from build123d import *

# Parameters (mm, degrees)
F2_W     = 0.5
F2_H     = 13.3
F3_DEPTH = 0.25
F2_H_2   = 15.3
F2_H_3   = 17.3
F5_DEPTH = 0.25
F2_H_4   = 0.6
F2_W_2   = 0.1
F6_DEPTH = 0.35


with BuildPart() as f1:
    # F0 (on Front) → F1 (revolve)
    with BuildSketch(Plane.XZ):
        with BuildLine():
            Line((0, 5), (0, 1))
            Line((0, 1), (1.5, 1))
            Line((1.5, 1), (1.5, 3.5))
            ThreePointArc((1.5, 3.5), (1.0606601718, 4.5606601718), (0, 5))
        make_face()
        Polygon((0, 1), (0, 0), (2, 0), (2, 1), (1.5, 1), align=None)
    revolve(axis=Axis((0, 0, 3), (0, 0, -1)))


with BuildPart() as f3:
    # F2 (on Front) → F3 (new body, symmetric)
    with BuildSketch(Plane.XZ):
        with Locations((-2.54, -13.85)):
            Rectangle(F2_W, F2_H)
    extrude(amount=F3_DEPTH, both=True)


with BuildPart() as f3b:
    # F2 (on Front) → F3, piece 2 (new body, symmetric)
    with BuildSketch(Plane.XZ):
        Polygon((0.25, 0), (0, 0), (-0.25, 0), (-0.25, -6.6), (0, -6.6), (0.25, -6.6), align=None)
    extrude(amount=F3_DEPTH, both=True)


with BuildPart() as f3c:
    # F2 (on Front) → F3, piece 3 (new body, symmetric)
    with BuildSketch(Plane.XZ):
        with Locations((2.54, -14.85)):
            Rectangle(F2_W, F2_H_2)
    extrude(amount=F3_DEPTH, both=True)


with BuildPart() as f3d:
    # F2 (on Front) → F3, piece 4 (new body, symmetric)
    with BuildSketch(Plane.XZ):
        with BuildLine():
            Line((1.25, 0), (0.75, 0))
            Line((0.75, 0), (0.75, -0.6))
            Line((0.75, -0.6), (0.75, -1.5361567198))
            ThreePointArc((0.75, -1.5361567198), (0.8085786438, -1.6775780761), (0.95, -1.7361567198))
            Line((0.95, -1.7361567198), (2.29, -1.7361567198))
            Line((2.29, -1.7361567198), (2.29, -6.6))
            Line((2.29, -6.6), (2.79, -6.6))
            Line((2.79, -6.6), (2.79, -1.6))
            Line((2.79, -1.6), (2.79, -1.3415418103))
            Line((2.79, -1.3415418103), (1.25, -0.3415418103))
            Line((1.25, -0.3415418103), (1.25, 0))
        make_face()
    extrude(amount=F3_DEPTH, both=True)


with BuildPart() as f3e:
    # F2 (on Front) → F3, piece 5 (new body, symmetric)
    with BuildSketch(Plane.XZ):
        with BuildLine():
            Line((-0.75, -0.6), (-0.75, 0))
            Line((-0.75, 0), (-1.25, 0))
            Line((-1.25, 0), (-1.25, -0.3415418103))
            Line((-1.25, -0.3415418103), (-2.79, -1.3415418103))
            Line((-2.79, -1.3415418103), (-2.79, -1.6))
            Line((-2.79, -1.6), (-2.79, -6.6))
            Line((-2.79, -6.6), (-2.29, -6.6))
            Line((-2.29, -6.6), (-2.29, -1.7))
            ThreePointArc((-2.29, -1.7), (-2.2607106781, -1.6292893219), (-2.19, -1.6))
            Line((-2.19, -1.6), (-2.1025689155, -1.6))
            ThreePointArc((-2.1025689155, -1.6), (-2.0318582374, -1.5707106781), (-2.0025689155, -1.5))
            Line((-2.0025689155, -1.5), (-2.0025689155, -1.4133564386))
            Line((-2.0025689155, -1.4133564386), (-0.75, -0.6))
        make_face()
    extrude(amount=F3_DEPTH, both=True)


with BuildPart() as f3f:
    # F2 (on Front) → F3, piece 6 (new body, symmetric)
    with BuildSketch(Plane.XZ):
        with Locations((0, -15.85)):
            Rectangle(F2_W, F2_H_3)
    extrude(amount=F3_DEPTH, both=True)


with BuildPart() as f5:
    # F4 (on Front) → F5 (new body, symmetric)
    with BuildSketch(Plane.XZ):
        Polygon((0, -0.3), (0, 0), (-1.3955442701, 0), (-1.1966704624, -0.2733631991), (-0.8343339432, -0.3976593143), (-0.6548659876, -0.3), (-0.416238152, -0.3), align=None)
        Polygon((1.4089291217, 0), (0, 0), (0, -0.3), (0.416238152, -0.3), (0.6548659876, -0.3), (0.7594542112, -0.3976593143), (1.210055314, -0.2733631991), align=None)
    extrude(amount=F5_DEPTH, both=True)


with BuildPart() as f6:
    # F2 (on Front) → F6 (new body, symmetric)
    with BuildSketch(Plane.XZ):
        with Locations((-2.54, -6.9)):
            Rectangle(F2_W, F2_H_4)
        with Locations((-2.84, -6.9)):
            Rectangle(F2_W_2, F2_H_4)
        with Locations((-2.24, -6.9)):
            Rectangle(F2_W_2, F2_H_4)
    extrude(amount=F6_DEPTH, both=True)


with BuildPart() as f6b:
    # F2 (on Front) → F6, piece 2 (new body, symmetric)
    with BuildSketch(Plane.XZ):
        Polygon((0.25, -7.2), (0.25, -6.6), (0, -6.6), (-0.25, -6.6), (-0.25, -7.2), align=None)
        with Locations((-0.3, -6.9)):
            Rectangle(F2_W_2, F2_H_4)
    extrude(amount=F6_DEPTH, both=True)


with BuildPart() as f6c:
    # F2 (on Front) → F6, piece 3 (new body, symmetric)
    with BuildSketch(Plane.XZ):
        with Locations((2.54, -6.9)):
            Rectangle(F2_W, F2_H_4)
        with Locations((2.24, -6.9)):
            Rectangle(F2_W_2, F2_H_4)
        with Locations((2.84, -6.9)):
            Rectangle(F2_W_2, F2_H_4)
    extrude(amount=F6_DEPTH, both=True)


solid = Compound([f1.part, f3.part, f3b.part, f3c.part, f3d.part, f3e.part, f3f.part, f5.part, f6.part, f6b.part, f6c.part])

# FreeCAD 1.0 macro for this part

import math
import FreeCAD as App
import Part
import Sketcher

V = App.Vector


def add_polygon(sketch, points):
    """Adds a closed chain of lines whose ends are joined by coincident constraints."""
    first, n = sketch.GeometryCount, len(points)
    for a, b in zip(points, points[1:] + points[:1]):
        sketch.addGeometry(Part.LineSegment(App.Vector(*a, 0), App.Vector(*b, 0)), False)
    for i in range(n):
        sketch.addConstraint(Sketcher.Constraint("Coincident", first + i, 2, first + (i + 1) % n, 1))

doc = App.newDocument("Part")
body = doc.addObject("PartDesign::Body", "Body")

sketch1 = body.newObject("Sketcher::SketchObject", "Sketch")
sketch1.AttachmentSupport = (doc.getObject("XZ_Plane"), [""])
sketch1.MapMode = "FlatFace"
sketch1.addGeometry([
    Part.LineSegment(V(0, 5, 0), V(0, 0, 0)),
    Part.LineSegment(V(0, 0, 0), V(2, 0, 0)),
    Part.LineSegment(V(2, 0, 0), V(2, 1, 0)),
    Part.LineSegment(V(2, 1, 0), V(1.5, 1, 0)),
    Part.LineSegment(V(1.5, 1, 0), V(1.5, 3.5, 0)),
    Part.ArcOfCircle(Part.Circle(V(0, 3.5, 0), V(0, 0, 1), 1.5), math.radians(0), math.radians(90)),
], False)
sketch1.addConstraint([
    Sketcher.Constraint("Coincident", 0, 2, 1, 1),
    Sketcher.Constraint("Coincident", 1, 2, 2, 1),
    Sketcher.Constraint("Coincident", 2, 2, 3, 1),
    Sketcher.Constraint("Coincident", 3, 2, 4, 1),
    Sketcher.Constraint("Tangent", 4, 2, 5, 1),
    Sketcher.Constraint("Coincident", 5, 2, 0, 1),
    Sketcher.Constraint("Vertical", 0),
    Sketcher.Constraint("Horizontal", 1),
    Sketcher.Constraint("Vertical", 2),
    Sketcher.Constraint("Horizontal", 3),
    Sketcher.Constraint("Vertical", 4),
    Sketcher.Constraint("Coincident", 0, 2, -1, 1),
    Sketcher.Constraint("PointOnObject", 5, 3, -2),
    Sketcher.Constraint("Radius", 5, 1.5),
    Sketcher.Constraint("DistanceX", 1, 1, 1, 2, 2.0),
    Sketcher.Constraint("DistanceY", 0, 2, 0, 1, 5.0),
    Sketcher.Constraint("DistanceY", 2, 1, 2, 2, 1.0),
])
revolution = body.newObject("PartDesign::Revolution", "Revolution")
revolution.Profile = sketch1
revolution.ReferenceAxis = (sketch1, ["V_Axis"])
revolution.Angle = 360
body2 = doc.addObject("PartDesign::Body", "Body001")

sketch2 = body2.newObject("Sketcher::SketchObject", "Sketch001")
sketch2.AttachmentSupport = (doc.getObject("XZ_Plane001"), [""])
sketch2.MapMode = "FlatFace"
add_polygon(sketch2, [(-2.8, -7.2), (-2.8, -20.5), (-2.3, -20.5), (-2.3, -7.2)])
sketch2.addConstraint([
    Sketcher.Constraint("Vertical", 0),
    Sketcher.Constraint("Horizontal", 1),
    Sketcher.Constraint("Vertical", 2),
    Sketcher.Constraint("Horizontal", 3),
    Sketcher.Constraint("DistanceX", 1, 1, 1, 2, 0.5),
    Sketcher.Constraint("DistanceY", 0, 2, 0, 1, 13.3),
    Sketcher.Constraint("DistanceY", 0, 2, -1, 1, 20.5),
    Sketcher.Constraint("DistanceX", 0, 2, -1, 1, 2.79),
])
pad1 = body2.newObject("PartDesign::Pad", "Pad")
pad1.Profile = sketch2
pad1.Length = 0.5
pad1.Midplane = True
body3 = doc.addObject("PartDesign::Body", "Body002")

sketch3 = body3.newObject("Sketcher::SketchObject", "Sketch002")
sketch3.AttachmentSupport = (doc.getObject("XZ_Plane002"), [""])
sketch3.MapMode = "FlatFace"
add_polygon(sketch3, [(0.2, 0), (-0.2, 0), (-0.2, -6.6), (0.2, -6.6)])
sketch3.addConstraint([
    Sketcher.Constraint("Horizontal", 0),
    Sketcher.Constraint("Vertical", 1),
    Sketcher.Constraint("Horizontal", 2),
    Sketcher.Constraint("Vertical", 3),
    Sketcher.Constraint("Symmetric", 0, 2, 3, 2, -1, 1),
    Sketcher.Constraint("DistanceX", 0, 2, 0, 1, 0.5),
    Sketcher.Constraint("DistanceY", 1, 2, 1, 1, 6.6),
])
pad2 = body3.newObject("PartDesign::Pad", "Pad001")
pad2.Profile = sketch3
pad2.Length = 0.5
pad2.Midplane = True
body4 = doc.addObject("PartDesign::Body", "Body003")

sketch4 = body4.newObject("Sketcher::SketchObject", "Sketch003")
sketch4.AttachmentSupport = (doc.getObject("XZ_Plane003"), [""])
sketch4.MapMode = "FlatFace"
add_polygon(sketch4, [(2.3, -7.2), (2.3, -22.5), (2.8, -22.5), (2.8, -7.2)])
sketch4.addConstraint([
    Sketcher.Constraint("Vertical", 0),
    Sketcher.Constraint("Horizontal", 1),
    Sketcher.Constraint("Vertical", 2),
    Sketcher.Constraint("Horizontal", 3),
    Sketcher.Constraint("DistanceX", 1, 1, 1, 2, 0.5),
    Sketcher.Constraint("DistanceY", 0, 2, 0, 1, 15.3),
    Sketcher.Constraint("DistanceY", 0, 2, -1, 1, 22.5),
    Sketcher.Constraint("DistanceX", -1, 1, 0, 2, 2.29),
])
pad3 = body4.newObject("PartDesign::Pad", "Pad002")
pad3.Profile = sketch4
pad3.Length = 0.5
pad3.Midplane = True
body5 = doc.addObject("PartDesign::Body", "Body004")

sketch5 = body5.newObject("Sketcher::SketchObject", "Sketch004")
sketch5.AttachmentSupport = (doc.getObject("XZ_Plane004"), [""])
sketch5.MapMode = "FlatFace"
sketch5.addGeometry([
    Part.LineSegment(V(1.25, 0, 0), V(0.75, 0, 0)),
    Part.LineSegment(V(0.75, 0, 0), V(0.75, -1.54, 0)),
    Part.ArcOfCircle(Part.Circle(V(0.95, -1.54, 0), V(0, 0, 1), 0.2), math.radians(180), math.radians(270)),
    Part.LineSegment(V(0.95, -1.74, 0), V(2.29, -1.74, 0)),
    Part.LineSegment(V(2.29, -1.74, 0), V(2.29, -6.6, 0)),
    Part.LineSegment(V(2.29, -6.6, 0), V(2.79, -6.6, 0)),
    Part.LineSegment(V(2.79, -6.6, 0), V(2.79, -1.34, 0)),
    Part.LineSegment(V(2.79, -1.34, 0), V(1.25, -0.34, 0)),
    Part.LineSegment(V(1.25, -0.34, 0), V(1.25, 0, 0)),
], False)
sketch5.addConstraint([
    Sketcher.Constraint("Coincident", 0, 2, 1, 1),
    Sketcher.Constraint("Tangent", 1, 2, 2, 1),
    Sketcher.Constraint("Tangent", 2, 2, 3, 1),
    Sketcher.Constraint("Coincident", 3, 2, 4, 1),
    Sketcher.Constraint("Coincident", 4, 2, 5, 1),
    Sketcher.Constraint("Coincident", 5, 2, 6, 1),
    Sketcher.Constraint("Coincident", 6, 2, 7, 1),
    Sketcher.Constraint("Coincident", 7, 2, 8, 1),
    Sketcher.Constraint("Coincident", 8, 2, 0, 1),
    Sketcher.Constraint("Horizontal", 0),
    Sketcher.Constraint("Vertical", 1),
    Sketcher.Constraint("Horizontal", 3),
    Sketcher.Constraint("Vertical", 4),
    Sketcher.Constraint("Horizontal", 5),
    Sketcher.Constraint("Vertical", 6),
    Sketcher.Constraint("Vertical", 8),
    Sketcher.Constraint("PointOnObject", 0, 2, -1),
    Sketcher.Constraint("Equal", 0, 5),
    Sketcher.Constraint("Radius", 2, 0.2),
    Sketcher.Constraint("DistanceX", 0, 2, 0, 1, 0.5),
    Sketcher.Constraint("DistanceX", 3, 1, 3, 2, 1.34),
    Sketcher.Constraint("DistanceY", 4, 2, -1, 1, 6.6),
    Sketcher.Constraint("DistanceX", -1, 1, 2, 3, 0.95),
    Sketcher.Constraint("DistanceY", 6, 1, 6, 2, 5.258458),
    Sketcher.Constraint("DistanceY", 8, 1, 8, 2, 0.341542),
    Sketcher.Constraint("DistanceY", 1, 2, 1, 1, 1.536157),
])
pad4 = body5.newObject("PartDesign::Pad", "Pad003")
pad4.Profile = sketch5
pad4.Length = 0.5
pad4.Midplane = True
body6 = doc.addObject("PartDesign::Body", "Body005")

sketch6 = body6.newObject("Sketcher::SketchObject", "Sketch005")
sketch6.AttachmentSupport = (doc.getObject("XZ_Plane005"), [""])
sketch6.MapMode = "FlatFace"
sketch6.addGeometry([
    Part.LineSegment(V(-0.75, -0.6, 0), V(-0.75, 0, 0)),
    Part.LineSegment(V(-0.75, 0, 0), V(-1.25, 0, 0)),
    Part.LineSegment(V(-1.25, 0, 0), V(-1.25, -0.34, 0)),
    Part.LineSegment(V(-1.25, -0.34, 0), V(-2.79, -1.34, 0)),
    Part.LineSegment(V(-2.79, -1.34, 0), V(-2.79, -6.6, 0)),
    Part.LineSegment(V(-2.79, -6.6, 0), V(-2.29, -6.6, 0)),
    Part.LineSegment(V(-2.29, -6.6, 0), V(-2.29, -1.7, 0)),
    Part.ArcOfCircle(Part.Circle(V(-2.19, -1.7, 0), V(0, 0, 1), 0.1), math.radians(90), math.radians(180)),
    Part.LineSegment(V(-2.19, -1.6, 0), V(-2.1, -1.6, 0)),
    Part.ArcOfCircle(Part.Circle(V(-2.1, -1.5, 0), V(0, 0, 1), 0.1), math.radians(-90), math.radians(0)),
    Part.LineSegment(V(-2, -1.5, 0), V(-2, -1.41, 0)),
    Part.LineSegment(V(-2, -1.41, 0), V(-0.75, -0.6, 0)),
], False)
sketch6.addConstraint([
    Sketcher.Constraint("Coincident", 0, 2, 1, 1),
    Sketcher.Constraint("Coincident", 1, 2, 2, 1),
    Sketcher.Constraint("Coincident", 2, 2, 3, 1),
    Sketcher.Constraint("Coincident", 3, 2, 4, 1),
    Sketcher.Constraint("Coincident", 4, 2, 5, 1),
    Sketcher.Constraint("Coincident", 5, 2, 6, 1),
    Sketcher.Constraint("Tangent", 6, 2, 7, 2),
    Sketcher.Constraint("Tangent", 7, 1, 8, 1),
    Sketcher.Constraint("Tangent", 8, 2, 9, 1),
    Sketcher.Constraint("Tangent", 9, 2, 10, 1),
    Sketcher.Constraint("Coincident", 10, 2, 11, 1),
    Sketcher.Constraint("Coincident", 11, 2, 0, 1),
    Sketcher.Constraint("Vertical", 0),
    Sketcher.Constraint("Horizontal", 1),
    Sketcher.Constraint("Vertical", 2),
    Sketcher.Constraint("Vertical", 4),
    Sketcher.Constraint("Horizontal", 5),
    Sketcher.Constraint("Vertical", 6),
    Sketcher.Constraint("Horizontal", 8),
    Sketcher.Constraint("Vertical", 10),
    Sketcher.Constraint("Equal", 7, 9),
    Sketcher.Constraint("PointOnObject", 0, 2, -1),
    Sketcher.Constraint("Parallel", 3, 11),
    Sketcher.Constraint("Equal", 1, 5),
    Sketcher.Constraint("Radius", 7, 0.1),
    Sketcher.Constraint("DistanceX", 1, 2, 1, 1, 0.5),
    Sketcher.Constraint("DistanceY", 0, 1, 0, 2, 0.6),
    Sketcher.Constraint("DistanceY", 6, 1, 6, 2, 4.9),
    Sketcher.Constraint("DistanceY", 3, 2, 2, 2, 1.0),
    Sketcher.Constraint("DistanceY", 7, 3, -1, 1, 1.7),
    Sketcher.Constraint("DistanceX", 7, 3, -1, 1, 2.19),
    Sketcher.Constraint("DistanceX", 0, 2, -1, 1, 0.75),
    Sketcher.Constraint("DistanceX", 8, 1, 8, 2, 0.087431),
    Sketcher.Constraint("DistanceY", 2, 2, 2, 1, 0.341542),
])
pad5 = body6.newObject("PartDesign::Pad", "Pad004")
pad5.Profile = sketch6
pad5.Length = 0.5
pad5.Midplane = True
body7 = doc.addObject("PartDesign::Body", "Body006")

sketch7 = body7.newObject("Sketcher::SketchObject", "Sketch006")
sketch7.AttachmentSupport = (doc.getObject("XZ_Plane006"), [""])
sketch7.MapMode = "FlatFace"
add_polygon(sketch7, [(-0.2, -7.2), (-0.2, -24.5), (0.2, -24.5), (0.2, -7.2)])
sketch7.addConstraint([
    Sketcher.Constraint("Vertical", 0),
    Sketcher.Constraint("Horizontal", 1),
    Sketcher.Constraint("Vertical", 2),
    Sketcher.Constraint("Horizontal", 3),
    Sketcher.Constraint("DistanceX", 1, 1, 1, 2, 0.5),
    Sketcher.Constraint("DistanceY", 0, 2, 0, 1, 17.3),
    Sketcher.Constraint("DistanceY", 0, 2, -1, 1, 24.5),
    Sketcher.Constraint("DistanceX", 0, 2, -1, 1, 0.25),
])
pad6 = body7.newObject("PartDesign::Pad", "Pad005")
pad6.Profile = sketch7
pad6.Length = 0.5
pad6.Midplane = True
body8 = doc.addObject("PartDesign::Body", "Body007")

sketch8 = body8.newObject("Sketcher::SketchObject", "Sketch007")
sketch8.AttachmentSupport = (doc.getObject("XZ_Plane007"), [""])
sketch8.MapMode = "FlatFace"
add_polygon(sketch8, [(-1.4, 0), (-1.2, -0.27), (-0.83, -0.4), (-0.65, -0.3), (0.65, -0.3), (0.76, -0.4), (1.21, -0.27), (1.41, 0)])
sketch8.addConstraint([
    Sketcher.Constraint("Horizontal", 3),
    Sketcher.Constraint("Horizontal", 7),
    Sketcher.Constraint("PointOnObject", 6, 2, -1),
    Sketcher.Constraint("Horizontal", 1, 2, 4, 2),
    Sketcher.Constraint("Horizontal", 0, 2, 5, 2),
    Sketcher.Constraint("Equal", 0, 6),
    Sketcher.Constraint("DistanceY", 2, 2, -1, 1, 0.3),
    Sketcher.Constraint("DistanceX", 7, 2, 4, 2, 2.154998),
    Sketcher.Constraint("DistanceX", 3, 1, 3, 2, 1.309732),
    Sketcher.Constraint("DistanceX", 1, 2, 3, 2, 1.4892),
    Sketcher.Constraint("DistanceX", 4, 2, 5, 2, 0.450601),
    Sketcher.Constraint("Distance", 0, 0.338051),
    Sketcher.Constraint("Distance", 2, 0.204319),
    Sketcher.Constraint("Distance", 5, 0.46743),
    Sketcher.Constraint("DistanceX", 0, 2, -1, 1, 1.19667),
    Sketcher.Constraint("DistanceX", 3, 2, 4, 2, 0.104588),
])
pad7 = body8.newObject("PartDesign::Pad", "Pad006")
pad7.Profile = sketch8
pad7.Length = 0.5
pad7.Midplane = True
body9 = doc.addObject("PartDesign::Body", "Body008")

sketch9 = body9.newObject("Sketcher::SketchObject", "Sketch008")
sketch9.AttachmentSupport = (doc.getObject("XZ_Plane008"), [""])
sketch9.MapMode = "FlatFace"
add_polygon(sketch9, [(-2.9, -6.6), (-2.9, -7.2), (-2.2, -7.2), (-2.2, -6.6)])
sketch9.addConstraint([
    Sketcher.Constraint("Vertical", 0),
    Sketcher.Constraint("Horizontal", 1),
    Sketcher.Constraint("Vertical", 2),
    Sketcher.Constraint("Horizontal", 3),
    Sketcher.Constraint("DistanceX", 1, 1, 1, 2, 0.7),
    Sketcher.Constraint("DistanceY", 0, 2, 0, 1, 0.6),
    Sketcher.Constraint("DistanceY", 0, 2, -1, 1, 7.2),
    Sketcher.Constraint("DistanceX", 0, 2, -1, 1, 2.89),
])
pad8 = body9.newObject("PartDesign::Pad", "Pad007")
pad8.Profile = sketch9
pad8.Length = 0.7
pad8.Midplane = True
body10 = doc.addObject("PartDesign::Body", "Body009")

sketch10 = body10.newObject("Sketcher::SketchObject", "Sketch009")
sketch10.AttachmentSupport = (doc.getObject("XZ_Plane009"), [""])
sketch10.MapMode = "FlatFace"
add_polygon(sketch10, [(0.2, -7.2), (0.2, -6.6), (-0.3, -6.6), (-0.3, -7.2)])
sketch10.addConstraint([
    Sketcher.Constraint("Vertical", 0),
    Sketcher.Constraint("Horizontal", 1),
    Sketcher.Constraint("Vertical", 2),
    Sketcher.Constraint("Horizontal", 3),
    Sketcher.Constraint("Equal", 3, 0),
    Sketcher.Constraint("DistanceX", 1, 2, 1, 1, 0.6),
    Sketcher.Constraint("DistanceY", 0, 2, -1, 1, 6.6),
    Sketcher.Constraint("DistanceX", -1, 1, 0, 2, 0.25),
])
pad9 = body10.newObject("PartDesign::Pad", "Pad008")
pad9.Profile = sketch10
pad9.Length = 0.7
pad9.Midplane = True
body11 = doc.addObject("PartDesign::Body", "Body010")

sketch11 = body11.newObject("Sketcher::SketchObject", "Sketch010")
sketch11.AttachmentSupport = (doc.getObject("XZ_Plane010"), [""])
sketch11.MapMode = "FlatFace"
add_polygon(sketch11, [(2.2, -6.6), (2.2, -7.2), (2.9, -7.2), (2.9, -6.6)])
sketch11.addConstraint([
    Sketcher.Constraint("Vertical", 0),
    Sketcher.Constraint("Horizontal", 1),
    Sketcher.Constraint("Vertical", 2),
    Sketcher.Constraint("Horizontal", 3),
    Sketcher.Constraint("DistanceX", 1, 1, 1, 2, 0.7),
    Sketcher.Constraint("DistanceY", 0, 2, 0, 1, 0.6),
    Sketcher.Constraint("DistanceY", 0, 2, -1, 1, 7.2),
    Sketcher.Constraint("DistanceX", -1, 1, 0, 2, 2.19),
])
pad10 = body11.newObject("PartDesign::Pad", "Pad009")
pad10.Profile = sketch11
pad10.Length = 0.7
pad10.Midplane = True

doc.recompute()
